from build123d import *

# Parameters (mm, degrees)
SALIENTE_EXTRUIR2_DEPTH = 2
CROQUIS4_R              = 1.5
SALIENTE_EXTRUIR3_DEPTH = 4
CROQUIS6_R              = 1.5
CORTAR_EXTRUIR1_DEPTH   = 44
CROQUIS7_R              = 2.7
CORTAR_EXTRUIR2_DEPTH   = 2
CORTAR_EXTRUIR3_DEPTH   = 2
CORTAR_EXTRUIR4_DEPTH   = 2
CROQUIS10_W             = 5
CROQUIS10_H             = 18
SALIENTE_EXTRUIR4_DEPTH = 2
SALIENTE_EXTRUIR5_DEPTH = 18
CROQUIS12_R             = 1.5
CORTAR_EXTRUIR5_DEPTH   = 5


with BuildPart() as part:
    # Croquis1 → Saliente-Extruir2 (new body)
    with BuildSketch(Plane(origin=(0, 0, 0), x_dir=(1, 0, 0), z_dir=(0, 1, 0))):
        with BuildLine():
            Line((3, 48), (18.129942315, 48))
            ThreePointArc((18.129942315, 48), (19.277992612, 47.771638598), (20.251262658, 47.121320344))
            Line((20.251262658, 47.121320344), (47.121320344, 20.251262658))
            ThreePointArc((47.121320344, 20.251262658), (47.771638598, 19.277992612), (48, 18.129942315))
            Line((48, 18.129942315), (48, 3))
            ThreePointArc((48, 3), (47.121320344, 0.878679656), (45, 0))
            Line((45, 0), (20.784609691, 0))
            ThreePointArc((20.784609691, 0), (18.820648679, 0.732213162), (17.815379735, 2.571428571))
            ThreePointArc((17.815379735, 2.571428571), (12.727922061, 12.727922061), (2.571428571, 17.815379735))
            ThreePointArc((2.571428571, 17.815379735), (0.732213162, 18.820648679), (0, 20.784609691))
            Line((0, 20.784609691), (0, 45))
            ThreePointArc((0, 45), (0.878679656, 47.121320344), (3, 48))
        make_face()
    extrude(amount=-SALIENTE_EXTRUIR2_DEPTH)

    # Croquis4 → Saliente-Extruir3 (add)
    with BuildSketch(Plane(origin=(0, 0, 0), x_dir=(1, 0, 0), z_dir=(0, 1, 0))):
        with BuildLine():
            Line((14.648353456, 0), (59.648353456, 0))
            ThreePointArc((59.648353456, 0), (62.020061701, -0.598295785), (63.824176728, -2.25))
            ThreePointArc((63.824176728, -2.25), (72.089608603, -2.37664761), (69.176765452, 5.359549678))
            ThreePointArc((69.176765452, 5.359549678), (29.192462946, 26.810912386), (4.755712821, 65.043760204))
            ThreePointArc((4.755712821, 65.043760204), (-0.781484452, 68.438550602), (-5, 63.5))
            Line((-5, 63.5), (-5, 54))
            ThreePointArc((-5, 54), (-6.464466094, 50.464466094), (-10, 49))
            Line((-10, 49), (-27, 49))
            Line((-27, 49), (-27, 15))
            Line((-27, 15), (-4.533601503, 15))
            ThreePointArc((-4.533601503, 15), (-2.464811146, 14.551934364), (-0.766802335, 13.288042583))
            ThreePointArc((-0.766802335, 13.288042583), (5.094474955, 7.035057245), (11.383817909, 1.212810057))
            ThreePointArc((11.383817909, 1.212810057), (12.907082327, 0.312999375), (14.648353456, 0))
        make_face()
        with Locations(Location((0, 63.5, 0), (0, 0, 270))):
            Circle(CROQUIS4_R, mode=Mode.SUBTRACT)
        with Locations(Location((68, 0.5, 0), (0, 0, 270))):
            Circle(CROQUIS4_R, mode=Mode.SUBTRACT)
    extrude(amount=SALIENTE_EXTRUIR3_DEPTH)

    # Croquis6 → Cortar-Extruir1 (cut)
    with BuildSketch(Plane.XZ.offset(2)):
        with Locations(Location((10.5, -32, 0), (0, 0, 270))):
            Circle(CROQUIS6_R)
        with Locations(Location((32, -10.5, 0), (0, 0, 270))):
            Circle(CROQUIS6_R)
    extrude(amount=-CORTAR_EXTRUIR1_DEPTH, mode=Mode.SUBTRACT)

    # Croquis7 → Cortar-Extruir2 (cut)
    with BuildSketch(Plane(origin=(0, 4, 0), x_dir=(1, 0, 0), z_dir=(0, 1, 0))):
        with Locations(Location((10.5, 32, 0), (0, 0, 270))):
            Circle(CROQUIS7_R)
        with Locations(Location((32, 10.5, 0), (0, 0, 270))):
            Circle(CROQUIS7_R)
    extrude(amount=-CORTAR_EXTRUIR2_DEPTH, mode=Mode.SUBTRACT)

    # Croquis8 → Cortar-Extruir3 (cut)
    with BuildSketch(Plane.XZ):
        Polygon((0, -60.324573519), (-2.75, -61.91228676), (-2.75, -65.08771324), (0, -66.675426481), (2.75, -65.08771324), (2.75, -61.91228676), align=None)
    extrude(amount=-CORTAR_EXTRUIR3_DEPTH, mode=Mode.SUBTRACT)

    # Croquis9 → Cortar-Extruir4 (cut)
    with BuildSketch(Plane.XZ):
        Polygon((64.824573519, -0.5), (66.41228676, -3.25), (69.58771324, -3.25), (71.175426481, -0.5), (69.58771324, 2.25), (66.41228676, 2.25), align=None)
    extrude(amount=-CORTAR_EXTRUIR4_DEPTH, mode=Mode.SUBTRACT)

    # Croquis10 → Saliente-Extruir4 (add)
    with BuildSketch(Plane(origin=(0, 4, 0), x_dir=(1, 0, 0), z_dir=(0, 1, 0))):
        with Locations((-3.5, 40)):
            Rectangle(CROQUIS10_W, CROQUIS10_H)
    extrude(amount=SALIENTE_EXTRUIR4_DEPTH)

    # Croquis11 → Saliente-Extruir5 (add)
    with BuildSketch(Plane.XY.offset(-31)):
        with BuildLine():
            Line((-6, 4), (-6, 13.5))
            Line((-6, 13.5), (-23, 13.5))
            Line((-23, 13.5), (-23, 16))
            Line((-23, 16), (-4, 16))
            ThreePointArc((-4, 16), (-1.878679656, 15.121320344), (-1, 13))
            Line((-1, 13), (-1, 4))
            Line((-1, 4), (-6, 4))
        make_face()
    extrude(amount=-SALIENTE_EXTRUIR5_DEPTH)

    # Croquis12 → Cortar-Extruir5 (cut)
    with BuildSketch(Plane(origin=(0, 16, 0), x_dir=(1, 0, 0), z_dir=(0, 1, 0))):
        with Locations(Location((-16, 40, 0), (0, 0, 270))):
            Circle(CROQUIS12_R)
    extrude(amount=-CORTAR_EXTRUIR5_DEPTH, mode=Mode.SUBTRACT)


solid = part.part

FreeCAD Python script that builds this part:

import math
import FreeCAD as App
import Part
import Sketcher

V = App.Vector
Q = App.Units.Quantity


def add_polygon(sketch, points):
    """Adds a closed chain of lines whose ends are joined by coincident constraints."""
    first, n = sketch.GeometryCount, len(points)
    for a, b in zip(points, points[1:] + points[:1]):
        sketch.addGeometry(Part.LineSegment(App.Vector(*a, 0), App.Vector(*b, 0)), False)
    for i in range(n):
        sketch.addConstraint(Sketcher.Constraint("Coincident", first + i, 2, first + (i + 1) % n, 1))

doc = App.newDocument("Part")
body = doc.addObject("PartDesign::Body", "Body")

sketch1 = body.newObject("Sketcher::SketchObject", "Sketch")
sketch1.AttachmentSupport = (doc.getObject("XZ_Plane"), [""])
sketch1.MapMode = "FlatFace"
sketch1.addGeometry(Part.LineSegment(V(18.1, -48, 0), V(3, -48, 0)), False)
sketch1.addGeometry(Part.ArcOfCircle(Part.Circle(V(3, -45, 0), V(0, 0, 1), 3), math.radians(180), math.radians(270)), False)
sketch1.addGeometry(Part.LineSegment(V(0, -45, 0), V(0, -20.8, 0)), False)
sketch1.addGeometry(Part.ArcOfCircle(Part.Circle(V(3, -20.8, 0), V(0, 0, 1), 3), math.radians(98), math.radians(180)), False)
sketch1.addGeometry(Part.ArcOfCircle(Part.Circle(V(0, 0, 0), V(0, 0, 1), 18), math.radians(-82), math.radians(-8)), False)
sketch1.addGeometry(Part.ArcOfCircle(Part.Circle(V(20.8, -3, 0), V(0, 0, 1), 3), math.radians(90), math.radians(172)), False)
sketch1.addGeometry(Part.LineSegment(V(20.8, 0, 0), V(45, 0, 0)), False)
sketch1.addGeometry(Part.ArcOfCircle(Part.Circle(V(45, -3, 0), V(0, 0, 1), 3), math.radians(0), math.radians(90)), False)
sketch1.addGeometry(Part.LineSegment(V(48, -3, 0), V(48, -18.1, 0)), False)
sketch1.addGeometry(Part.ArcOfCircle(Part.Circle(V(45, -18.1, 0), V(0, 0, 1), 3), math.radians(-45), math.radians(0)), False)
sketch1.addGeometry(Part.LineSegment(V(47.1, -20.3, 0), V(20.3, -47.1, 0)), False)
sketch1.addGeometry(Part.ArcOfCircle(Part.Circle(V(18.1, -45, 0), V(0, 0, 1), 3), math.radians(-90), math.radians(-45)), False)
sketch1.addConstraint(Sketcher.Constraint("Tangent", 0, 2, 1, 2))
sketch1.addConstraint(Sketcher.Constraint("Tangent", 1, 1, 2, 1))
sketch1.addConstraint(Sketcher.Constraint("Tangent", 2, 2, 3, 2))
sketch1.addConstraint(Sketcher.Constraint("Tangent", 3, 1, 4, 1))
sketch1.addConstraint(Sketcher.Constraint("Tangent", 4, 2, 5, 2))
sketch1.addConstraint(Sketcher.Constraint("Tangent", 5, 1, 6, 1))
sketch1.addConstraint(Sketcher.Constraint("Tangent", 6, 2, 7, 2))
sketch1.addConstraint(Sketcher.Constraint("Tangent", 7, 1, 8, 1))
sketch1.addConstraint(Sketcher.Constraint("Tangent", 8, 2, 9, 2))
sketch1.addConstraint(Sketcher.Constraint("Tangent", 9, 1, 10, 1))
sketch1.addConstraint(Sketcher.Constraint("Tangent", 10, 2, 11, 2))
sketch1.addConstraint(Sketcher.Constraint("Tangent", 11, 1, 0, 1))
sketch1.addConstraint(Sketcher.Constraint("Horizontal", 0))
sketch1.addConstraint(Sketcher.Constraint("Vertical", 2))
sketch1.addConstraint(Sketcher.Constraint("Horizontal", 6))
sketch1.addConstraint(Sketcher.Constraint("Vertical", 8))
sketch1.addConstraint(Sketcher.Constraint("Coincident", 4, 3, -1, 1))
sketch1.addConstraint(Sketcher.Constraint("Equal", 1, 3))
sketch1.addConstraint(Sketcher.Constraint("Equal", 3, 5))
sketch1.addConstraint(Sketcher.Constraint("Equal", 5, 7))
sketch1.addConstraint(Sketcher.Constraint("Equal", 7, 9))
sketch1.addConstraint(Sketcher.Constraint("Equal", 9, 11))
sketch1.addConstraint(Sketcher.Constraint("PointOnObject", 1, 1, -2))
sketch1.addConstraint(Sketcher.Constraint("PointOnObject", 5, 1, -1))
sketch1.addConstraint(Sketcher.Constraint("Equal", 6, 2))
sketch1.addConstraint(Sketcher.Constraint("Equal", 0, 8))
sketch1.addConstraint(Sketcher.Constraint("Radius", 1, 3.0))
sketch1.addConstraint(Sketcher.Constraint("Radius", 4, 18.0))
sketch1.addConstraint(Sketcher.Constraint("Distance", 10, 38.0))
sketch1.addConstraint(Sketcher.Constraint("DistanceY", 1, 3, -1, 1, 45.0))
pad1 = body.newObject("PartDesign::Pad", "Pad")
pad1.Profile = sketch1
pad1.Length = 2

sketch2 = body.newObject("Sketcher::SketchObject", "Sketch001")
sketch2.AttachmentSupport = (doc.getObject("XZ_Plane"), [""])
sketch2.MapMode = "FlatFace"
sketch2.addGeometry(Part.LineSegment(V(14.6, 0, 0), V(59.6, 0, 0)), False)
sketch2.addGeometry(Part.ArcOfCircle(Part.Circle(V(59.6, 5, 0), V(0, 0, 1), 5), math.radians(-90), math.radians(-33)), False)
sketch2.addGeometry(Part.ArcOfCircle(Part.Circle(V(68, -0.5, 0), V(0, 0, 1), 5), math.radians(-76), math.radians(147)), False)
sketch2.addGeometry(Part.ArcOfCircle(Part.Circle(V(90.4, -92.8, 0), V(0, 0, 1), 90), math.radians(104), math.radians(162)), False)
sketch2.addGeometry(Part.ArcOfCircle(Part.Circle(V(0, -63.5, 0), V(0, 0, 1), 5), math.radians(180), math.radians(342)), False)
sketch2.addGeometry(Part.LineSegment(V(-5, -63.5, 0), V(-5, -54, 0)), False)
sketch2.addGeometry(Part.ArcOfCircle(Part.Circle(V(-10, -54, 0), V(0, 0, 1), 5), math.radians(0), math.radians(90)), False)
sketch2.addGeometry(Part.LineSegment(V(-10, -49, 0), V(-27, -49, 0)), False)
sketch2.addGeometry(Part.LineSegment(V(-27, -49, 0), V(-27, -15, 0)), False)
sketch2.addGeometry(Part.LineSegment(V(-27, -15, 0), V(-4.5, -15, 0)), False)
sketch2.addGeometry(Part.ArcOfCircle(Part.Circle(V(-4.5, -10, 0), V(0, 0, 1), 5), math.radians(-90), math.radians(-41)), False)
sketch2.addGeometry(Part.ArcOfCircle(Part.Circle(V(90.4, -92.8, 0), V(0, 0, 1), 121), math.radians(130.76), math.radians(138.88)), False)
sketch2.addGeometry(Part.ArcOfCircle(Part.Circle(V(14.6, -5, 0), V(0, 0, 1), 5), math.radians(90), math.radians(131)), False)
sketch2.addGeometry(Part.Circle(V(68, -0.5, 0), V(0, 0, 1), 1.5), False)
sketch2.addGeometry(Part.Circle(V(0, -63.5, 0), V(0, 0, 1), 1.5), False)
sketch2.addConstraint(Sketcher.Constraint("Tangent", 0, 2, 1, 1))
sketch2.addConstraint(Sketcher.Constraint("Tangent", 1, 2, 2, 2))
sketch2.addConstraint(Sketcher.Constraint("Tangent", 2, 1, 3, 1))
sketch2.addConstraint(Sketcher.Constraint("Tangent", 3, 2, 4, 2))
sketch2.addConstraint(Sketcher.Constraint("Tangent", 4, 1, 5, 1))
sketch2.addConstraint(Sketcher.Constraint("Tangent", 5, 2, 6, 1))
sketch2.addConstraint(Sketcher.Constraint("Tangent", 6, 2, 7, 1))
sketch2.addConstraint(Sketcher.Constraint("Coincident", 7, 2, 8, 1))
sketch2.addConstraint(Sketcher.Constraint("Coincident", 8, 2, 9, 1))
sketch2.addConstraint(Sketcher.Constraint("Tangent", 9, 2, 10, 1))
sketch2.addConstraint(Sketcher.Constraint("Tangent", 10, 2, 11, 2))
sketch2.addConstraint(Sketcher.Constraint("Tangent", 11, 1, 12, 2))
sketch2.addConstraint(Sketcher.Constraint("Tangent", 12, 1, 0, 1))
sketch2.addConstraint(Sketcher.Constraint("Horizontal", 0))
sketch2.addConstraint(Sketcher.Constraint("Vertical", 5))
sketch2.addConstraint(Sketcher.Constraint("Horizontal", 7))
sketch2.addConstraint(Sketcher.Constraint("Vertical", 8))
sketch2.addConstraint(Sketcher.Constraint("Horizontal", 9))
sketch2.addConstraint(Sketcher.Constraint("Coincident", 11, 3, 3, 3))
sketch2.addConstraint(Sketcher.Constraint("Coincident", 13, 3, 2, 3))
sketch2.addConstraint(Sketcher.Constraint("Coincident", 14, 3, 4, 3))
sketch2.addConstraint(Sketcher.Constraint("Equal", 1, 2))
sketch2.addConstraint(Sketcher.Constraint("Equal", 2, 4))
sketch2.addConstraint(Sketcher.Constraint("Equal", 4, 6))
sketch2.addConstraint(Sketcher.Constraint("Equal", 6, 10))
sketch2.addConstraint(Sketcher.Constraint("Equal", 10, 12))
sketch2.addConstraint(Sketcher.Constraint("Equal", 13, 14))
sketch2.addConstraint(Sketcher.Constraint("PointOnObject", 4, 3, -2))
sketch2.addConstraint(Sketcher.Constraint("PointOnObject", 0, 2, -1))
sketch2.addConstraint(Sketcher.Constraint("Diameter", 13, 3.0))
sketch2.addConstraint(Sketcher.Constraint("Radius", 1, 5.0))
sketch2.addConstraint(Sketcher.Constraint("Radius", 3, 90.0))
sketch2.addConstraint(Sketcher.Constraint("DistanceX", 0, 1, 0, 2, 45.0))
sketch2.addConstraint(Sketcher.Constraint("DistanceX", 7, 2, 7, 1, 17.0))
sketch2.addConstraint(Sketcher.Constraint("DistanceY", 8, 1, 8, 2, 34.0))
sketch2.addConstraint(Sketcher.Constraint("DistanceY", 5, 1, 5, 2, 9.5))
sketch2.addConstraint(Sketcher.Constraint("DistanceX", -1, 1, 2, 3, 68.0))
sketch2.addConstraint(Sketcher.Constraint("DistanceY", 6, 3, -1, 1, 54.0))
sketch2.addConstraint(Sketcher.Constraint("DistanceY", 4, 3, 2, 3, 63.0))
pad2 = body.newObject("PartDesign::Pad", "Pad001")
pad2.Profile = sketch2
pad2.Length = 4
pad2.Reversed = True

sketch3 = body.newObject("Sketcher::SketchObject", "Sketch002")
sketch3.AttachmentSupport = (doc.getObject("XZ_Plane"), [""])
sketch3.MapMode = "FlatFace"
sketch3.AttachmentOffset = App.Placement(V(0, 0, 2), App.Rotation())
sketch3.addGeometry(Part.Circle(V(10.5, -32, 0), V(0, 0, 1), 1.5), False)
sketch3.addGeometry(Part.Circle(V(32, -10.5, 0), V(0, 0, 1), 1.5), False)
sketch3.addConstraint(Sketcher.Constraint("Equal", 0, 1))
sketch3.addConstraint(Sketcher.Constraint("Diameter", 0, 3.0))
sketch3.addConstraint(Sketcher.Constraint("DistanceY", 0, 3, -1, 1, 32.0))
sketch3.addConstraint(Sketcher.Constraint("DistanceX", -1, 1, 1, 3, 32.0))
sketch3.addConstraint(Sketcher.Constraint("DistanceX", -1, 1, 0, 3, 10.5))
sketch3.addConstraint(Sketcher.Constraint("DistanceY", 1, 3, -1, 1, 10.5))
pocket1 = body.newObject("PartDesign::Pocket", "Pocket")
pocket1.Profile = sketch3
pocket1.Length = 44

sketch4 = body.newObject("Sketcher::SketchObject", "Sketch003")
sketch4.AttachmentSupport = (doc.getObject("XZ_Plane"), [""])
sketch4.MapMode = "FlatFace"
sketch4.AttachmentOffset = App.Placement(V(0, 0, -4), App.Rotation())
sketch4.addGeometry(Part.Circle(V(10.5, -32, 0), V(0, 0, 1), 2.7), False)
sketch4.addGeometry(Part.Circle(V(32, -10.5, 0), V(0, 0, 1), 2.7), False)
sketch4.addConstraint(Sketcher.Constraint("Equal", 0, 1))
sketch4.addConstraint(Sketcher.Constraint("Diameter", 0, 5.4))
sketch4.addConstraint(Sketcher.Constraint("DistanceY", 0, 3, -1, 1, 32.0))
sketch4.addConstraint(Sketcher.Constraint("DistanceX", -1, 1, 1, 3, 32.0))
sketch4.addConstraint(Sketcher.Constraint("DistanceX", -1, 1, 0, 3, 10.5))
sketch4.addConstraint(Sketcher.Constraint("DistanceY", 1, 3, -1, 1, 10.5))
pocket2 = body.newObject("PartDesign::Pocket", "Pocket001")
pocket2.Profile = sketch4
pocket2.Length = 2
pocket2.Reversed = True

sketch5 = body.newObject("Sketcher::SketchObject", "Sketch004")
sketch5.AttachmentSupport = (doc.getObject("XZ_Plane"), [""])
sketch5.MapMode = "FlatFace"
add_polygon(sketch5, [(0, -60.3), (-2.8, -61.9), (-2.8, -65.1), (0, -66.7), (2.8, -65.1), (2.8, -61.9)])
sketch5.addConstraint(Sketcher.Constraint("Vertical", 1))
sketch5.addConstraint(Sketcher.Constraint("Vertical", 4))
sketch5.addConstraint(Sketcher.Constraint("Symmetric", 1, 2, 3, 2, -2))
sketch5.addConstraint(Sketcher.Constraint("PointOnObject", 2, 2, -2))
sketch5.addConstraint(Sketcher.Constraint("PointOnObject", 5, 2, -2))
sketch5.addConstraint(Sketcher.Constraint("Parallel", 0, 3))
sketch5.addConstraint(Sketcher.Constraint("Parallel", 2, 5))
sketch5.addConstraint(Sketcher.Constraint("Angle", 0, Q("-150 deg")))
sketch5.addConstraint(Sketcher.Constraint("DistanceX", 1, 2, 3, 2, 5.5))
sketch5.addConstraint(Sketcher.Constraint("DistanceY", 1, 2, 1, 1, 3.175426))
sketch5.addConstraint(Sketcher.Constraint("DistanceY", 0, 2, -1, 1, 61.912287))
pocket3 = body.newObject("PartDesign::Pocket", "Pocket002")
pocket3.Profile = sketch5
pocket3.Length = 2

sketch6 = body.newObject("Sketcher::SketchObject", "Sketch005")
sketch6.AttachmentSupport = (doc.getObject("XZ_Plane"), [""])
sketch6.MapMode = "FlatFace"
add_polygon(sketch6, [(64.8, -0.5), (66.4, -3.2), (69.6, -3.2), (71.2, -0.5), (69.6, 2.2), (66.4, 2.2)])
sketch6.addConstraint(Sketcher.Constraint("Horizontal", 1))
sketch6.addConstraint(Sketcher.Constraint("Horizontal", 4))
sketch6.addConstraint(Sketcher.Constraint("Parallel", 0, 3))
sketch6.addConstraint(Sketcher.Constraint("Parallel", 2, 5))
sketch6.addConstraint(Sketcher.Constraint("Horizontal", 2, 2, 5, 2))
sketch6.addConstraint(Sketcher.Constraint("Vertical", 1, 2, 3, 2))
sketch6.addConstraint(Sketcher.Constraint("Vertical", 0, 2, 4, 2))
sketch6.addConstraint(Sketcher.Constraint("Angle", 0, Q("-60 deg")))
sketch6.addConstraint(Sketcher.Constraint("DistanceY", 2, 2, -1, 1, 0.5))
sketch6.addConstraint(Sketcher.Constraint("DistanceY", 1, 2, 3, 2, 5.5))
sketch6.addConstraint(Sketcher.Constraint("DistanceX", 1, 1, 1, 2, 3.175426))
sketch6.addConstraint(Sketcher.Constraint("DistanceX", -1, 1, 0, 2, 66.412287))
pocket4 = body.newObject("PartDesign::Pocket", "Pocket003")
pocket4.Profile = sketch6
pocket4.Length = 2

sketch7 = body.newObject("Sketcher::SketchObject", "Sketch006")
sketch7.AttachmentSupport = (doc.getObject("XZ_Plane"), [""])
sketch7.MapMode = "FlatFace"
sketch7.AttachmentOffset = App.Placement(V(0, 0, -4), App.Rotation())
add_polygon(sketch7, [(-6, -49), (-6, -31), (-1, -31), (-1, -49)])
sketch7.addConstraint(Sketcher.Constraint("Vertical", 0))
sketch7.addConstraint(Sketcher.Constraint("Horizontal", 1))
sketch7.addConstraint(Sketcher.Constraint("Vertical", 2))
sketch7.addConstraint(Sketcher.Constraint("Horizontal", 3))
sketch7.addConstraint(Sketcher.Constraint("DistanceX", 1, 1, 1, 2, 5.0))
sketch7.addConstraint(Sketcher.Constraint("DistanceY", 0, 1, 0, 2, 18.0))
sketch7.addConstraint(Sketcher.Constraint("DistanceX", 0, 2, -1, 1, 6.0))
sketch7.addConstraint(Sketcher.Constraint("DistanceY", 0, 2, -1, 1, 31.0))
pad3 = body.newObject("PartDesign::Pad", "Pad002")
pad3.Profile = sketch7
pad3.Length = 2
pad3.Reversed = True

sketch8 = body.newObject("Sketcher::SketchObject", "Sketch007")
sketch8.AttachmentSupport = (doc.getObject("XY_Plane"), [""])
sketch8.MapMode = "FlatFace"
sketch8.AttachmentOffset = App.Placement(V(0, 0, -31), App.Rotation())
sketch8.addGeometry(Part.LineSegment(V(-6, 13.5, 0), V(-6, 4, 0)), False)
sketch8.addGeometry(Part.LineSegment(V(-6, 4, 0), V(-1, 4, 0)), False)
sketch8.addGeometry(Part.LineSegment(V(-1, 4, 0), V(-1, 13, 0)), False)
sketch8.addGeometry(Part.ArcOfCircle(Part.Circle(V(-4, 13, 0), V(0, 0, 1), 3), math.radians(0), math.radians(90)), False)
sketch8.addGeometry(Part.LineSegment(V(-4, 16, 0), V(-23, 16, 0)), False)
sketch8.addGeometry(Part.LineSegment(V(-23, 16, 0), V(-23, 13.5, 0)), False)
sketch8.addGeometry(Part.LineSegment(V(-23, 13.5, 0), V(-6, 13.5, 0)), False)
sketch8.addConstraint(Sketcher.Constraint("Coincident", 0, 2, 1, 1))
sketch8.addConstraint(Sketcher.Constraint("Coincident", 1, 2, 2, 1))
sketch8.addConstraint(Sketcher.Constraint("Tangent", 2, 2, 3, 1))
sketch8.addConstraint(Sketcher.Constraint("Tangent", 3, 2, 4, 1))
sketch8.addConstraint(Sketcher.Constraint("Coincident", 4, 2, 5, 1))
sketch8.addConstraint(Sketcher.Constraint("Coincident", 5, 2, 6, 1))
sketch8.addConstraint(Sketcher.Constraint("Coincident", 6, 2, 0, 1))
sketch8.addConstraint(Sketcher.Constraint("Vertical", 0))
sketch8.addConstraint(Sketcher.Constraint("Horizontal", 1))
sketch8.addConstraint(Sketcher.Constraint("Vertical", 2))
sketch8.addConstraint(Sketcher.Constraint("Horizontal", 4))
sketch8.addConstraint(Sketcher.Constraint("Vertical", 5))
sketch8.addConstraint(Sketcher.Constraint("Horizontal", 6))
sketch8.addConstraint(Sketcher.Constraint("Radius", 3, 3.0))
sketch8.addConstraint(Sketcher.Constraint("DistanceX", 1, 1, 1, 2, 5.0))
sketch8.addConstraint(Sketcher.Constraint("DistanceX", 4, 2, 4, 1, 19.0))
sketch8.addConstraint(Sketcher.Constraint("DistanceY", 2, 1, 2, 2, 9.0))
sketch8.addConstraint(Sketcher.Constraint("DistanceY", 0, 2, 0, 1, 9.5))
sketch8.addConstraint(Sketcher.Constraint("DistanceX", 3, 3, -1, 1, 4.0))
sketch8.addConstraint(Sketcher.Constraint("DistanceY", -1, 1, 3, 3, 13.0))
pad4 = body.newObject("PartDesign::Pad", "Pad003")
pad4.Profile = sketch8
pad4.Length = 18
pad4.Reversed = True

sketch9 = body.newObject("Sketcher::SketchObject", "Sketch008")
sketch9.AttachmentSupport = (doc.getObject("XZ_Plane"), [""])
sketch9.MapMode = "FlatFace"
sketch9.AttachmentOffset = App.Placement(V(0, 0, -16), App.Rotation())
sketch9.addGeometry(Part.Circle(V(-16, -40, 0), V(0, 0, 1), 1.5), False)
sketch9.addConstraint(Sketcher.Constraint("Diameter", 0, 3.0))
sketch9.addConstraint(Sketcher.Constraint("DistanceX", 0, 3, -1, 1, 16.0))
sketch9.addConstraint(Sketcher.Constraint("DistanceY", 0, 3, -1, 1, 40.0))
pocket5 = body.newObject("PartDesign::Pocket", "Pocket004")
pocket5.Profile = sketch9
pocket5.Length = 5
pocket5.Reversed = True

doc.recompute()
